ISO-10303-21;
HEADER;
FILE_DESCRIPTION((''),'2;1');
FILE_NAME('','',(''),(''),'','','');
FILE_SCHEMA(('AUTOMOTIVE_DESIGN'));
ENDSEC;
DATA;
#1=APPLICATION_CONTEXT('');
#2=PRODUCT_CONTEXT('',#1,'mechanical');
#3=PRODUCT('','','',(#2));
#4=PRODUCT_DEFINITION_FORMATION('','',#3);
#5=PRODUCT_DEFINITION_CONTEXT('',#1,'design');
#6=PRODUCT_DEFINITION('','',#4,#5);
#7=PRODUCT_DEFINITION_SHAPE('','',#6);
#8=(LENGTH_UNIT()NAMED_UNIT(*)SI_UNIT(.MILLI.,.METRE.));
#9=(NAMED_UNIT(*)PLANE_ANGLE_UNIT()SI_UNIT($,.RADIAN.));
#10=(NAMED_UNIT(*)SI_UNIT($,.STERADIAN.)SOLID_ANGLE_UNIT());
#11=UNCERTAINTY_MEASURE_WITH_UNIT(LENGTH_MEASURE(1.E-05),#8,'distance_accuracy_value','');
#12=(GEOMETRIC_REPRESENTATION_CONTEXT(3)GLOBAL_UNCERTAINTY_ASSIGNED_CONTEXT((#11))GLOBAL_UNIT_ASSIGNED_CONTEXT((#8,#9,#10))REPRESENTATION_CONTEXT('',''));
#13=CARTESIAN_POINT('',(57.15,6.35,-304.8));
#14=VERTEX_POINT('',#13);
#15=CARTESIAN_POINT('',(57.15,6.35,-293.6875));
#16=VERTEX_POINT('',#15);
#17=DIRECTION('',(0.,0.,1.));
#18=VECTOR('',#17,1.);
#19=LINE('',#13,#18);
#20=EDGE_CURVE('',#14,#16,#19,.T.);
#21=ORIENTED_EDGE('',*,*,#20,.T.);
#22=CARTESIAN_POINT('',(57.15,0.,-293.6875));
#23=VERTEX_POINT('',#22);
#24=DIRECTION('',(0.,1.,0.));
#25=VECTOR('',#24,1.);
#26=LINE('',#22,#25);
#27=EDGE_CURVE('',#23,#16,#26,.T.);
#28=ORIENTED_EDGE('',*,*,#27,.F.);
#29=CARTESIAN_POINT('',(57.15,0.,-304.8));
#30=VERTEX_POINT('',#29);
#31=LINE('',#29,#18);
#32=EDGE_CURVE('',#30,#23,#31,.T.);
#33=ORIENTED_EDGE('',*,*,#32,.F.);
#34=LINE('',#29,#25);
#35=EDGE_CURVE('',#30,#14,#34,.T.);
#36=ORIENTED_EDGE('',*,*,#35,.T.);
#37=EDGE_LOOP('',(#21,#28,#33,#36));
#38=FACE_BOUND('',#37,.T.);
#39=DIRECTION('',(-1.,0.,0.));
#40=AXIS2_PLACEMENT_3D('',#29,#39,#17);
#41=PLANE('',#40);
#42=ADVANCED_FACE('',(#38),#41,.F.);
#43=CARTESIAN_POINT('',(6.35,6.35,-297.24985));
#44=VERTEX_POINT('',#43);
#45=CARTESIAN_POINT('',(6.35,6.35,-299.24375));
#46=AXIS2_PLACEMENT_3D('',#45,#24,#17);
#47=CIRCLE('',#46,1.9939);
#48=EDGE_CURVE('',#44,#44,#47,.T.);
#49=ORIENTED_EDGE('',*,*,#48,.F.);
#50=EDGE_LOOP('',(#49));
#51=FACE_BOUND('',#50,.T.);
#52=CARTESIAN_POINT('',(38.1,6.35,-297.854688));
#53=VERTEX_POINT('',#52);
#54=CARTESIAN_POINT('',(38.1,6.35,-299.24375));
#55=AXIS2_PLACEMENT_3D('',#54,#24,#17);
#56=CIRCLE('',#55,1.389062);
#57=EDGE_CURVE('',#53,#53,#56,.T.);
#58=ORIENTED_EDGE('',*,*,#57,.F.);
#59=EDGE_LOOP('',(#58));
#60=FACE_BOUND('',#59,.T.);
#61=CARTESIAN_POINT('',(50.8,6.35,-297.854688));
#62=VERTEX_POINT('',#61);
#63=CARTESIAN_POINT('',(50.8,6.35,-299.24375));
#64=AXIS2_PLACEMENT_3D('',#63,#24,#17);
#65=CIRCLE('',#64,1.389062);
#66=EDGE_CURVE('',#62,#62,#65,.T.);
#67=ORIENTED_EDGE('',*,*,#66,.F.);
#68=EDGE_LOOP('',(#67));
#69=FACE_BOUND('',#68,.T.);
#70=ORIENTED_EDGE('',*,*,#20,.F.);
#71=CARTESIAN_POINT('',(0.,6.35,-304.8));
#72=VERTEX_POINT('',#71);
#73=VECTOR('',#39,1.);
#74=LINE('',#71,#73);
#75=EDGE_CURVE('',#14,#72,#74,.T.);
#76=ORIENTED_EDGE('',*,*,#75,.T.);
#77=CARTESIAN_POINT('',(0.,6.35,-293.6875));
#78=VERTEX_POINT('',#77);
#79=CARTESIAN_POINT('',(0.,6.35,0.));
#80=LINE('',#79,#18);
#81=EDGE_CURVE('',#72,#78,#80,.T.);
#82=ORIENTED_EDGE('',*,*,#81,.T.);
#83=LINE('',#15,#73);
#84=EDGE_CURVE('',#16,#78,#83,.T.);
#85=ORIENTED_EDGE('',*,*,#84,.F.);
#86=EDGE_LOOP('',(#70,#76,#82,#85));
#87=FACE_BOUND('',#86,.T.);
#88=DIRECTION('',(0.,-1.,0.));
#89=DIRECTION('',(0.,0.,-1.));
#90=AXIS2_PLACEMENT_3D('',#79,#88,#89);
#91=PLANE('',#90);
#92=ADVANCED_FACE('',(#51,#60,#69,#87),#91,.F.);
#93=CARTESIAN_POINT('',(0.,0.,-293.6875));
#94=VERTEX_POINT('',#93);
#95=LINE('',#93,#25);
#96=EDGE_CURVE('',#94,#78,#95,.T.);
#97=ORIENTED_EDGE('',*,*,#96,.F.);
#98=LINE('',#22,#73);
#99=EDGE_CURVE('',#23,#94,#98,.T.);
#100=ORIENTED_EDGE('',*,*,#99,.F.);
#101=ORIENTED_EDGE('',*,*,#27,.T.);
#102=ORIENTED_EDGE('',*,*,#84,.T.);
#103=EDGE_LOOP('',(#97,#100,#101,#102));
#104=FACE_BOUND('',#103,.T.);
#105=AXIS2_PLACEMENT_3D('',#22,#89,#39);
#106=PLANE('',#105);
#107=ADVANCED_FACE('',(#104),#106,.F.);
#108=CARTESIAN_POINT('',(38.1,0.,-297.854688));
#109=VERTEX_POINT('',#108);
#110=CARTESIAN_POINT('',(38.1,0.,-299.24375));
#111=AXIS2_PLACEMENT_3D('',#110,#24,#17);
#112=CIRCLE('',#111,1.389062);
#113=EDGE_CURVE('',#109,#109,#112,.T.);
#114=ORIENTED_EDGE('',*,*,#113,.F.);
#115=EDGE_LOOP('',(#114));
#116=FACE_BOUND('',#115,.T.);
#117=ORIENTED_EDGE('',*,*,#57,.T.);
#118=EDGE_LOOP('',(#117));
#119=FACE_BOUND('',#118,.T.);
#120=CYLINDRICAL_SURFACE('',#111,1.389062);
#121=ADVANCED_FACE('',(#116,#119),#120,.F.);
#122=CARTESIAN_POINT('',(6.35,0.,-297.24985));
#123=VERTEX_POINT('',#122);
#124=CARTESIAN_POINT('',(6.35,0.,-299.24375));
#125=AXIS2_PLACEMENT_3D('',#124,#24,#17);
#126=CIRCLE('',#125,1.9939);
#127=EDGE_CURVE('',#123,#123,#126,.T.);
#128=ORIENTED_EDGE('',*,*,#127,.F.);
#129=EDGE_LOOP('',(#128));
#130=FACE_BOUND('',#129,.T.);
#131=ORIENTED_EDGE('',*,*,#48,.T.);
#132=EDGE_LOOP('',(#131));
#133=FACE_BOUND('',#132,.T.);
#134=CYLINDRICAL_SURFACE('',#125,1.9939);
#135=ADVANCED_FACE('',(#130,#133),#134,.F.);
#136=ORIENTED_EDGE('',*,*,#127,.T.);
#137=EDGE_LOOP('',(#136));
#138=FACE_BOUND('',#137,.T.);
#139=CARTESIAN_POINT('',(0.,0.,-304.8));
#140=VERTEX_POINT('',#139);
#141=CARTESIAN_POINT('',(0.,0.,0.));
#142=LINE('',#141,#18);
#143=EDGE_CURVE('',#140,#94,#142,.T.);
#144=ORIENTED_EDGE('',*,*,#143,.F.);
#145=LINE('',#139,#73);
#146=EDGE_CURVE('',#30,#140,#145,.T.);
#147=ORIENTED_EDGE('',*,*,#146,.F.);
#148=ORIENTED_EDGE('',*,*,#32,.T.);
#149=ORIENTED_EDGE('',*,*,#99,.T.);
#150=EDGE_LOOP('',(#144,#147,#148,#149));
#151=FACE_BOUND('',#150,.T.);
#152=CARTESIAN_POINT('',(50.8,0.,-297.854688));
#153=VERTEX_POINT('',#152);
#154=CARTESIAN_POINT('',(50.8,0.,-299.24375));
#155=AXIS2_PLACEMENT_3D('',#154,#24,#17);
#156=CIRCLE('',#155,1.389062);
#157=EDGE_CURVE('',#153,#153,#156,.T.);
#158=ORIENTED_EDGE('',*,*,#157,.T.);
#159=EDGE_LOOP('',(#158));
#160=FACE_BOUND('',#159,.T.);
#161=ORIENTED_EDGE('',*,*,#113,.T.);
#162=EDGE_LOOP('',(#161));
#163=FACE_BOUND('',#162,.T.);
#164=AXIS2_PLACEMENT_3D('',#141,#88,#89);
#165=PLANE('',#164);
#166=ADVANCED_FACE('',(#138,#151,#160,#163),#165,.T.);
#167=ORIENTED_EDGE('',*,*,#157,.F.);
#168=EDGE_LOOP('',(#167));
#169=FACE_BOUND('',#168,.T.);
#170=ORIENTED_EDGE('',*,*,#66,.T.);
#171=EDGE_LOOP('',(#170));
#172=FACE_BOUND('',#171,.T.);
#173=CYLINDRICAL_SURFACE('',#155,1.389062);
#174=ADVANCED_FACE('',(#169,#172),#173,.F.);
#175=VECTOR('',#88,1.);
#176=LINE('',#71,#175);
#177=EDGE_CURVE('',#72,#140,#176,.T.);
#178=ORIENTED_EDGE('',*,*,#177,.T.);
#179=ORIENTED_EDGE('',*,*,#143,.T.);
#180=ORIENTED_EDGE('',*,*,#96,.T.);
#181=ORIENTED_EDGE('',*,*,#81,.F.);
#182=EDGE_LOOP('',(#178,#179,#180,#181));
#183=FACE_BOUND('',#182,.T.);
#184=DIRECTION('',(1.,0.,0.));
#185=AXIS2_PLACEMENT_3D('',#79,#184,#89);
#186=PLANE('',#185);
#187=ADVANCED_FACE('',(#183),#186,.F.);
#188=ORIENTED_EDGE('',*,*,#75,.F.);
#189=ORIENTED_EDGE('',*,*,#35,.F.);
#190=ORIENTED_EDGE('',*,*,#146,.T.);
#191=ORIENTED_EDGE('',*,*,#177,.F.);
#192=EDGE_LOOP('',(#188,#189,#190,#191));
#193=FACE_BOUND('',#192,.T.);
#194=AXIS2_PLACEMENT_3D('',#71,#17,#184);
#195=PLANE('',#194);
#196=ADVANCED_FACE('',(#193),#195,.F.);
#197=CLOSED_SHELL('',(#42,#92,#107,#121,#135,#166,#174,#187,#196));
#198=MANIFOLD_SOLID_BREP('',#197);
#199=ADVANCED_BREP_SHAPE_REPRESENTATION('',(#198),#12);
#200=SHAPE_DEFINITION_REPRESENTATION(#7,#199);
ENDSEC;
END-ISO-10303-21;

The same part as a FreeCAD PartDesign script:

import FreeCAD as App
import Part
import Sketcher

V = App.Vector
Q = App.Units.Quantity

doc = App.newDocument("Part")
body = doc.addObject("PartDesign::Body", "Body")

sketch1 = body.newObject("Sketcher::SketchObject", "Sketch")
sketch1.AttachmentSupport = (doc.getObject("XZ_Plane"), [""])
sketch1.MapMode = "FlatFace"
sketch1.addGeometry(Part.LineSegment(V(0, -304.8, 0), V(0, 0, 0)), False)
sketch1.addGeometry(Part.LineSegment(V(0, 0, 0), V(304.8, 0, 0)), False)
sketch1.addGeometry(Part.LineSegment(V(304.8, 0, 0), V(304.8, -304.8, 0)), False)
sketch1.addGeometry(Part.LineSegment(V(304.8, -304.8, 0), V(0, -304.8, 0)), False)
sketch1.addConstraint(Sketcher.Constraint("Coincident", 0, 2, 1, 1))
sketch1.addConstraint(Sketcher.Constraint("Coincident", 1, 2, 2, 1))
sketch1.addConstraint(Sketcher.Constraint("Coincident", 2, 2, 3, 1))
sketch1.addConstraint(Sketcher.Constraint("Coincident", 3, 2, 0, 1))
sketch1.addConstraint(Sketcher.Constraint("Vertical", 0))
sketch1.addConstraint(Sketcher.Constraint("Horizontal", 1))
sketch1.addConstraint(Sketcher.Constraint("Vertical", 2))
sketch1.addConstraint(Sketcher.Constraint("Horizontal", 3))
sketch1.addConstraint(Sketcher.Constraint("Coincident", 0, 2, -1, 1))
sketch1.addConstraint(Sketcher.Constraint("Equal", 3, 0))
sketch1.addConstraint(Sketcher.Constraint("DistanceX", 1, 1, 1, 2, Q("12 in")))
pad1 = body.newObject("PartDesign::Pad", "Pad")
pad1.Profile = sketch1
pad1.Length = Q("0.25 in")
pad1.Reversed = True

sketch2 = body.newObject("Sketcher::SketchObject", "Sketch001")
sketch2.AttachmentSupport = (doc.getObject("XZ_Plane"), [""])
sketch2.MapMode = "FlatFace"
sketch2.AttachmentOffset = App.Placement(V(0, 0, -0.25 * 25.4), App.Rotation())
sketch2.addGeometry(Part.LineSegment(V(57.15, -304.8, 0), V(57.15, -293.6875, 0)), False)
sketch2.addGeometry(Part.LineSegment(V(57.15, -293.6875, 0), V(0, -293.6875, 0)), False)
sketch2.addGeometry(Part.LineSegment(V(0, -293.6875, 0), V(0, 0, 0)), False)
sketch2.addGeometry(Part.LineSegment(V(0, 0, 0), V(304.8, 0, 0)), False)
sketch2.addGeometry(Part.LineSegment(V(304.8, 0, 0), V(304.8, -304.8, 0)), False)
sketch2.addGeometry(Part.LineSegment(V(304.8, -304.8, 0), V(57.15, -304.8, 0)), False)
sketch2.addConstraint(Sketcher.Constraint("Coincident", 0, 2, 1, 1))
sketch2.addConstraint(Sketcher.Constraint("Coincident", 1, 2, 2, 1))
sketch2.addConstraint(Sketcher.Constraint("Coincident", 2, 2, 3, 1))
sketch2.addConstraint(Sketcher.Constraint("Coincident", 3, 2, 4, 1))
sketch2.addConstraint(Sketcher.Constraint("Coincident", 4, 2, 5, 1))
sketch2.addConstraint(Sketcher.Constraint("Coincident", 5, 2, 0, 1))
sketch2.addConstraint(Sketcher.Constraint("Vertical", 0))
sketch2.addConstraint(Sketcher.Constraint("Horizontal", 1))
sketch2.addConstraint(Sketcher.Constraint("Vertical", 2))
sketch2.addConstraint(Sketcher.Constraint("Horizontal", 3))
sketch2.addConstraint(Sketcher.Constraint("Vertical", 4))
sketch2.addConstraint(Sketcher.Constraint("Horizontal", 5))
sketch2.addConstraint(Sketcher.Constraint("Coincident", 2, 2, -1, 1))
sketch2.addConstraint(Sketcher.Constraint("Equal", 3, 4))
sketch2.addConstraint(Sketcher.Constraint("DistanceX", 3, 1, 3, 2, Q("12 in")))
sketch2.addConstraint(Sketcher.Constraint("DistanceX", 1, 2, 1, 1, Q("2.25 in")))
sketch2.addConstraint(Sketcher.Constraint("DistanceY", 0, 1, 0, 2, Q("0.4375 in")))
pocket1 = body.newObject("PartDesign::Pocket", "Pocket")
pocket1.Profile = sketch2
pocket1.Length = Q("0.25 in")
pocket1.Reversed = True

sketch3 = body.newObject("Sketcher::SketchObject", "Sketch002")
sketch3.AttachmentSupport = (doc.getObject("XZ_Plane"), [""])
sketch3.MapMode = "FlatFace"
sketch3.AttachmentOffset = App.Placement(V(0, 0, -0.25 * 25.4), App.Rotation())
sketch3.addGeometry(Part.Circle(V(6.35, -299.24375, 0), V(0, 0, 1), 1.9939), False)
sketch3.addGeometry(Part.Circle(V(50.8, -299.24375, 0), V(0, 0, 1), 1.389063), False)
sketch3.addGeometry(Part.Circle(V(38.1, -299.24375, 0), V(0, 0, 1), 1.389063), False)
sketch3.addConstraint(Sketcher.Constraint("Equal", 1, 2))
sketch3.addConstraint(Sketcher.Constraint("Horizontal", 0, 3, 1, 3))
sketch3.addConstraint(Sketcher.Constraint("Horizontal", 1, 3, 2, 3))
sketch3.addConstraint(Sketcher.Constraint("Diameter", 0, Q("0.157 in")))
sketch3.addConstraint(Sketcher.Constraint("Diameter", 1, Q("0.109375 in")))
sketch3.addConstraint(Sketcher.Constraint("DistanceX", -1, 1, 1, 3, Q("2 in")))
sketch3.addConstraint(Sketcher.Constraint("DistanceX", -1, 1, 2, 3, Q("1.5 in")))
sketch3.addConstraint(Sketcher.Constraint("DistanceX", -1, 1, 0, 3, Q("0.25 in")))
sketch3.addConstraint(Sketcher.Constraint("DistanceY", 0, 3, -1, 1, Q("11.78125 in")))
pocket2 = body.newObject("PartDesign::Pocket", "Pocket001")
pocket2.Profile = sketch3
pocket2.Type = "ThroughAll"
pocket2.Reversed = True

doc.recompute()
